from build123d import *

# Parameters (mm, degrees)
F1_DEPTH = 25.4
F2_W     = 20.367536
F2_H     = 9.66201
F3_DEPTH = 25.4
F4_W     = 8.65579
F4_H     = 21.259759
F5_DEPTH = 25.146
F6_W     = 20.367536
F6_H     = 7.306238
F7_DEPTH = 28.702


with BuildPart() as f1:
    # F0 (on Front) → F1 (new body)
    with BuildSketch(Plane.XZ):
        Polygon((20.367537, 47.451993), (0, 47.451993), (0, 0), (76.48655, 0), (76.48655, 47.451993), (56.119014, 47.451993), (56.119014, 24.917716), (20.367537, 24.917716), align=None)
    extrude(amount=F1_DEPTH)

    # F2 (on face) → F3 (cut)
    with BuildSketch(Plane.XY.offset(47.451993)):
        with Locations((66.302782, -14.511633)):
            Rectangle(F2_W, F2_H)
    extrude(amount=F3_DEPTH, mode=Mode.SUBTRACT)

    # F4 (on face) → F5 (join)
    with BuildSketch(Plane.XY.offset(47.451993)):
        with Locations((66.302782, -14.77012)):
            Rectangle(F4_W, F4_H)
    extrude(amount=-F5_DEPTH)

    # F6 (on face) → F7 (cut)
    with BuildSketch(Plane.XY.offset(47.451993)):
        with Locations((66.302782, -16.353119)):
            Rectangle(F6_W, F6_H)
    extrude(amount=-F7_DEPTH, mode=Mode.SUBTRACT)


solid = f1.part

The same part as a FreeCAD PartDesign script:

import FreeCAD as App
import Part
import Sketcher
Q = App.Units.Quantity

doc = App.newDocument("Part")
body = doc.addObject("PartDesign::Body", "Body")

sketch1 = body.newObject("Sketcher::SketchObject", "Sketch")
sketch1.AttachmentSupport = (doc.getObject("XZ_Plane"), [""])
sketch1.MapMode = "FlatFace"
sketch1.addGeometry([
    Part.LineSegment(App.Vector(20, 47, 0), App.Vector(0, 47, 0)),
    Part.LineSegment(App.Vector(0, 47, 0), App.Vector(0, 0, 0)),
    Part.LineSegment(App.Vector(0, 0, 0), App.Vector(76, 0, 0)),
    Part.LineSegment(App.Vector(76, 0, 0), App.Vector(76, 47, 0)),
    Part.LineSegment(App.Vector(76, 47, 0), App.Vector(56, 47, 0)),
    Part.LineSegment(App.Vector(56, 47, 0), App.Vector(56, 25, 0)),
    Part.LineSegment(App.Vector(56, 25, 0), App.Vector(20, 25, 0)),
    Part.LineSegment(App.Vector(20, 25, 0), App.Vector(20, 47, 0)),
], False)
sketch1.addConstraint([
    Sketcher.Constraint("Coincident", 0, 2, 1, 1),
    Sketcher.Constraint("Coincident", 1, 2, 2, 1),
    Sketcher.Constraint("Coincident", 2, 2, 3, 1),
    Sketcher.Constraint("Coincident", 3, 2, 4, 1),
    Sketcher.Constraint("Coincident", 4, 2, 5, 1),
    Sketcher.Constraint("Coincident", 5, 2, 6, 1),
    Sketcher.Constraint("Coincident", 6, 2, 7, 1),
    Sketcher.Constraint("Coincident", 7, 2, 0, 1),
    Sketcher.Constraint("Horizontal", 0),
    Sketcher.Constraint("Vertical", 1),
    Sketcher.Constraint("Horizontal", 2),
    Sketcher.Constraint("Vertical", 3),
    Sketcher.Constraint("Horizontal", 4),
    Sketcher.Constraint("Vertical", 5),
    Sketcher.Constraint("Horizontal", 6),
    Sketcher.Constraint("Vertical", 7),
    Sketcher.Constraint("Coincident", 1, 2, -1, 1),
    Sketcher.Constraint("Horizontal", 0, 2, 3, 2),
    Sketcher.Constraint("Equal", 0, 4),
    Sketcher.Constraint("DistanceX", 2, 1, 2, 2, Q("76.48655 mm")),
    Sketcher.Constraint("DistanceX", 0, 2, 0, 1, Q("20.367537 mm")),
    Sketcher.Constraint("DistanceY", 1, 2, 1, 1, Q("47.451993 mm")),
    Sketcher.Constraint("DistanceY", 5, 2, 5, 1, Q("22.534277 mm")),
])
pad1 = body.newObject("PartDesign::Pad", "Pad")
pad1.Profile = sketch1
pad1.Length = Q("1 in")

sketch2 = body.newObject("Sketcher::SketchObject", "Sketch001")
sketch2.AttachmentSupport = (doc.getObject("XY_Plane"), [""])
sketch2.MapMode = "FlatFace"
sketch2.AttachmentOffset = App.Placement(App.Vector(0, 0, 47.451993), App.Rotation())
sketch2.addGeometry([
    Part.LineSegment(App.Vector(56, -10, 0), App.Vector(56, -19, 0)),
    Part.LineSegment(App.Vector(56, -19, 0), App.Vector(76, -19, 0)),
    Part.LineSegment(App.Vector(76, -19, 0), App.Vector(76, -10, 0)),
    Part.LineSegment(App.Vector(76, -10, 0), App.Vector(56, -10, 0)),
], False)
sketch2.addConstraint([
    Sketcher.Constraint("Coincident", 0, 2, 1, 1),
    Sketcher.Constraint("Coincident", 1, 2, 2, 1),
    Sketcher.Constraint("Coincident", 2, 2, 3, 1),
    Sketcher.Constraint("Coincident", 3, 2, 0, 1),
    Sketcher.Constraint("Vertical", 0),
    Sketcher.Constraint("Horizontal", 1),
    Sketcher.Constraint("Vertical", 2),
    Sketcher.Constraint("Horizontal", 3),
    Sketcher.Constraint("DistanceY", 0, 2, 0, 1, Q("9.66201 mm")),
    Sketcher.Constraint("DistanceX", 1, 1, 1, 2, Q("20.367536 mm")),
    Sketcher.Constraint("DistanceY", 0, 2, -1, 1, Q("19.342638 mm")),
    Sketcher.Constraint("DistanceX", -1, 1, 1, 2, Q("76.48655 mm")),
])
pocket1 = body.newObject("PartDesign::Pocket", "Pocket")
pocket1.Profile = sketch2
pocket1.Length = Q("1 in")
pocket1.Reversed = True

sketch3 = body.newObject("Sketcher::SketchObject", "Sketch002")
sketch3.AttachmentSupport = (doc.getObject("XY_Plane"), [""])
sketch3.MapMode = "FlatFace"
sketch3.AttachmentOffset = App.Placement(App.Vector(0, 0, 47.451993), App.Rotation())
sketch3.addGeometry([
    Part.LineSegment(App.Vector(62, -4, 0), App.Vector(62, -25, 0)),
    Part.LineSegment(App.Vector(62, -25, 0), App.Vector(71, -25, 0)),
    Part.LineSegment(App.Vector(71, -25, 0), App.Vector(71, -4, 0)),
    Part.LineSegment(App.Vector(71, -4, 0), App.Vector(62, -4, 0)),
], False)
sketch3.addConstraint([
    Sketcher.Constraint("Coincident", 0, 2, 1, 1),
    Sketcher.Constraint("Coincident", 1, 2, 2, 1),
    Sketcher.Constraint("Coincident", 2, 2, 3, 1),
    Sketcher.Constraint("Coincident", 3, 2, 0, 1),
    Sketcher.Constraint("Vertical", 0),
    Sketcher.Constraint("Horizontal", 1),
    Sketcher.Constraint("Vertical", 2),
    Sketcher.Constraint("Horizontal", 3),
    Sketcher.Constraint("DistanceY", 0, 2, -1, 1, Q("1 in")),
    Sketcher.Constraint("DistanceX", 1, 1, 1, 2, Q("8.65579 mm")),
    Sketcher.Constraint("DistanceY", 0, 2, 0, 1, Q("21.259759 mm")),
    Sketcher.Constraint("DistanceX", -1, 1, 0, 2, Q("61.974887 mm")),
])
pad2 = body.newObject("PartDesign::Pad", "Pad001")
pad2.Profile = sketch3
pad2.Length = Q("0.99 in")
pad2.Reversed = True

sketch4 = body.newObject("Sketcher::SketchObject", "Sketch003")
sketch4.AttachmentSupport = (doc.getObject("XY_Plane"), [""])
sketch4.MapMode = "FlatFace"
sketch4.AttachmentOffset = App.Placement(App.Vector(0, 0, 47.451993), App.Rotation())
sketch4.addGeometry([
    Part.LineSegment(App.Vector(56, -13, 0), App.Vector(56, -20, 0)),
    Part.LineSegment(App.Vector(56, -20, 0), App.Vector(76, -20, 0)),
    Part.LineSegment(App.Vector(76, -20, 0), App.Vector(76, -13, 0)),
    Part.LineSegment(App.Vector(76, -13, 0), App.Vector(56, -13, 0)),
], False)
sketch4.addConstraint([
    Sketcher.Constraint("Coincident", 0, 2, 1, 1),
    Sketcher.Constraint("Coincident", 1, 2, 2, 1),
    Sketcher.Constraint("Coincident", 2, 2, 3, 1),
    Sketcher.Constraint("Coincident", 3, 2, 0, 1),
    Sketcher.Constraint("Vertical", 0),
    Sketcher.Constraint("Horizontal", 1),
    Sketcher.Constraint("Vertical", 2),
    Sketcher.Constraint("Horizontal", 3),
    Sketcher.Constraint("DistanceY", 2, 2, -1, 1, Q("0.5 in")),
    Sketcher.Constraint("DistanceY", 0, 2, 0, 1, Q("7.306238 mm")),
    Sketcher.Constraint("DistanceX", 1, 1, 1, 2, Q("20.367536 mm")),
    Sketcher.Constraint("DistanceX", -1, 1, 1, 2, Q("76.48655 mm")),
])
pocket2 = body.newObject("PartDesign::Pocket", "Pocket001")
pocket2.Profile = sketch4
pocket2.Length = Q("1.13 in")

doc.recompute()
